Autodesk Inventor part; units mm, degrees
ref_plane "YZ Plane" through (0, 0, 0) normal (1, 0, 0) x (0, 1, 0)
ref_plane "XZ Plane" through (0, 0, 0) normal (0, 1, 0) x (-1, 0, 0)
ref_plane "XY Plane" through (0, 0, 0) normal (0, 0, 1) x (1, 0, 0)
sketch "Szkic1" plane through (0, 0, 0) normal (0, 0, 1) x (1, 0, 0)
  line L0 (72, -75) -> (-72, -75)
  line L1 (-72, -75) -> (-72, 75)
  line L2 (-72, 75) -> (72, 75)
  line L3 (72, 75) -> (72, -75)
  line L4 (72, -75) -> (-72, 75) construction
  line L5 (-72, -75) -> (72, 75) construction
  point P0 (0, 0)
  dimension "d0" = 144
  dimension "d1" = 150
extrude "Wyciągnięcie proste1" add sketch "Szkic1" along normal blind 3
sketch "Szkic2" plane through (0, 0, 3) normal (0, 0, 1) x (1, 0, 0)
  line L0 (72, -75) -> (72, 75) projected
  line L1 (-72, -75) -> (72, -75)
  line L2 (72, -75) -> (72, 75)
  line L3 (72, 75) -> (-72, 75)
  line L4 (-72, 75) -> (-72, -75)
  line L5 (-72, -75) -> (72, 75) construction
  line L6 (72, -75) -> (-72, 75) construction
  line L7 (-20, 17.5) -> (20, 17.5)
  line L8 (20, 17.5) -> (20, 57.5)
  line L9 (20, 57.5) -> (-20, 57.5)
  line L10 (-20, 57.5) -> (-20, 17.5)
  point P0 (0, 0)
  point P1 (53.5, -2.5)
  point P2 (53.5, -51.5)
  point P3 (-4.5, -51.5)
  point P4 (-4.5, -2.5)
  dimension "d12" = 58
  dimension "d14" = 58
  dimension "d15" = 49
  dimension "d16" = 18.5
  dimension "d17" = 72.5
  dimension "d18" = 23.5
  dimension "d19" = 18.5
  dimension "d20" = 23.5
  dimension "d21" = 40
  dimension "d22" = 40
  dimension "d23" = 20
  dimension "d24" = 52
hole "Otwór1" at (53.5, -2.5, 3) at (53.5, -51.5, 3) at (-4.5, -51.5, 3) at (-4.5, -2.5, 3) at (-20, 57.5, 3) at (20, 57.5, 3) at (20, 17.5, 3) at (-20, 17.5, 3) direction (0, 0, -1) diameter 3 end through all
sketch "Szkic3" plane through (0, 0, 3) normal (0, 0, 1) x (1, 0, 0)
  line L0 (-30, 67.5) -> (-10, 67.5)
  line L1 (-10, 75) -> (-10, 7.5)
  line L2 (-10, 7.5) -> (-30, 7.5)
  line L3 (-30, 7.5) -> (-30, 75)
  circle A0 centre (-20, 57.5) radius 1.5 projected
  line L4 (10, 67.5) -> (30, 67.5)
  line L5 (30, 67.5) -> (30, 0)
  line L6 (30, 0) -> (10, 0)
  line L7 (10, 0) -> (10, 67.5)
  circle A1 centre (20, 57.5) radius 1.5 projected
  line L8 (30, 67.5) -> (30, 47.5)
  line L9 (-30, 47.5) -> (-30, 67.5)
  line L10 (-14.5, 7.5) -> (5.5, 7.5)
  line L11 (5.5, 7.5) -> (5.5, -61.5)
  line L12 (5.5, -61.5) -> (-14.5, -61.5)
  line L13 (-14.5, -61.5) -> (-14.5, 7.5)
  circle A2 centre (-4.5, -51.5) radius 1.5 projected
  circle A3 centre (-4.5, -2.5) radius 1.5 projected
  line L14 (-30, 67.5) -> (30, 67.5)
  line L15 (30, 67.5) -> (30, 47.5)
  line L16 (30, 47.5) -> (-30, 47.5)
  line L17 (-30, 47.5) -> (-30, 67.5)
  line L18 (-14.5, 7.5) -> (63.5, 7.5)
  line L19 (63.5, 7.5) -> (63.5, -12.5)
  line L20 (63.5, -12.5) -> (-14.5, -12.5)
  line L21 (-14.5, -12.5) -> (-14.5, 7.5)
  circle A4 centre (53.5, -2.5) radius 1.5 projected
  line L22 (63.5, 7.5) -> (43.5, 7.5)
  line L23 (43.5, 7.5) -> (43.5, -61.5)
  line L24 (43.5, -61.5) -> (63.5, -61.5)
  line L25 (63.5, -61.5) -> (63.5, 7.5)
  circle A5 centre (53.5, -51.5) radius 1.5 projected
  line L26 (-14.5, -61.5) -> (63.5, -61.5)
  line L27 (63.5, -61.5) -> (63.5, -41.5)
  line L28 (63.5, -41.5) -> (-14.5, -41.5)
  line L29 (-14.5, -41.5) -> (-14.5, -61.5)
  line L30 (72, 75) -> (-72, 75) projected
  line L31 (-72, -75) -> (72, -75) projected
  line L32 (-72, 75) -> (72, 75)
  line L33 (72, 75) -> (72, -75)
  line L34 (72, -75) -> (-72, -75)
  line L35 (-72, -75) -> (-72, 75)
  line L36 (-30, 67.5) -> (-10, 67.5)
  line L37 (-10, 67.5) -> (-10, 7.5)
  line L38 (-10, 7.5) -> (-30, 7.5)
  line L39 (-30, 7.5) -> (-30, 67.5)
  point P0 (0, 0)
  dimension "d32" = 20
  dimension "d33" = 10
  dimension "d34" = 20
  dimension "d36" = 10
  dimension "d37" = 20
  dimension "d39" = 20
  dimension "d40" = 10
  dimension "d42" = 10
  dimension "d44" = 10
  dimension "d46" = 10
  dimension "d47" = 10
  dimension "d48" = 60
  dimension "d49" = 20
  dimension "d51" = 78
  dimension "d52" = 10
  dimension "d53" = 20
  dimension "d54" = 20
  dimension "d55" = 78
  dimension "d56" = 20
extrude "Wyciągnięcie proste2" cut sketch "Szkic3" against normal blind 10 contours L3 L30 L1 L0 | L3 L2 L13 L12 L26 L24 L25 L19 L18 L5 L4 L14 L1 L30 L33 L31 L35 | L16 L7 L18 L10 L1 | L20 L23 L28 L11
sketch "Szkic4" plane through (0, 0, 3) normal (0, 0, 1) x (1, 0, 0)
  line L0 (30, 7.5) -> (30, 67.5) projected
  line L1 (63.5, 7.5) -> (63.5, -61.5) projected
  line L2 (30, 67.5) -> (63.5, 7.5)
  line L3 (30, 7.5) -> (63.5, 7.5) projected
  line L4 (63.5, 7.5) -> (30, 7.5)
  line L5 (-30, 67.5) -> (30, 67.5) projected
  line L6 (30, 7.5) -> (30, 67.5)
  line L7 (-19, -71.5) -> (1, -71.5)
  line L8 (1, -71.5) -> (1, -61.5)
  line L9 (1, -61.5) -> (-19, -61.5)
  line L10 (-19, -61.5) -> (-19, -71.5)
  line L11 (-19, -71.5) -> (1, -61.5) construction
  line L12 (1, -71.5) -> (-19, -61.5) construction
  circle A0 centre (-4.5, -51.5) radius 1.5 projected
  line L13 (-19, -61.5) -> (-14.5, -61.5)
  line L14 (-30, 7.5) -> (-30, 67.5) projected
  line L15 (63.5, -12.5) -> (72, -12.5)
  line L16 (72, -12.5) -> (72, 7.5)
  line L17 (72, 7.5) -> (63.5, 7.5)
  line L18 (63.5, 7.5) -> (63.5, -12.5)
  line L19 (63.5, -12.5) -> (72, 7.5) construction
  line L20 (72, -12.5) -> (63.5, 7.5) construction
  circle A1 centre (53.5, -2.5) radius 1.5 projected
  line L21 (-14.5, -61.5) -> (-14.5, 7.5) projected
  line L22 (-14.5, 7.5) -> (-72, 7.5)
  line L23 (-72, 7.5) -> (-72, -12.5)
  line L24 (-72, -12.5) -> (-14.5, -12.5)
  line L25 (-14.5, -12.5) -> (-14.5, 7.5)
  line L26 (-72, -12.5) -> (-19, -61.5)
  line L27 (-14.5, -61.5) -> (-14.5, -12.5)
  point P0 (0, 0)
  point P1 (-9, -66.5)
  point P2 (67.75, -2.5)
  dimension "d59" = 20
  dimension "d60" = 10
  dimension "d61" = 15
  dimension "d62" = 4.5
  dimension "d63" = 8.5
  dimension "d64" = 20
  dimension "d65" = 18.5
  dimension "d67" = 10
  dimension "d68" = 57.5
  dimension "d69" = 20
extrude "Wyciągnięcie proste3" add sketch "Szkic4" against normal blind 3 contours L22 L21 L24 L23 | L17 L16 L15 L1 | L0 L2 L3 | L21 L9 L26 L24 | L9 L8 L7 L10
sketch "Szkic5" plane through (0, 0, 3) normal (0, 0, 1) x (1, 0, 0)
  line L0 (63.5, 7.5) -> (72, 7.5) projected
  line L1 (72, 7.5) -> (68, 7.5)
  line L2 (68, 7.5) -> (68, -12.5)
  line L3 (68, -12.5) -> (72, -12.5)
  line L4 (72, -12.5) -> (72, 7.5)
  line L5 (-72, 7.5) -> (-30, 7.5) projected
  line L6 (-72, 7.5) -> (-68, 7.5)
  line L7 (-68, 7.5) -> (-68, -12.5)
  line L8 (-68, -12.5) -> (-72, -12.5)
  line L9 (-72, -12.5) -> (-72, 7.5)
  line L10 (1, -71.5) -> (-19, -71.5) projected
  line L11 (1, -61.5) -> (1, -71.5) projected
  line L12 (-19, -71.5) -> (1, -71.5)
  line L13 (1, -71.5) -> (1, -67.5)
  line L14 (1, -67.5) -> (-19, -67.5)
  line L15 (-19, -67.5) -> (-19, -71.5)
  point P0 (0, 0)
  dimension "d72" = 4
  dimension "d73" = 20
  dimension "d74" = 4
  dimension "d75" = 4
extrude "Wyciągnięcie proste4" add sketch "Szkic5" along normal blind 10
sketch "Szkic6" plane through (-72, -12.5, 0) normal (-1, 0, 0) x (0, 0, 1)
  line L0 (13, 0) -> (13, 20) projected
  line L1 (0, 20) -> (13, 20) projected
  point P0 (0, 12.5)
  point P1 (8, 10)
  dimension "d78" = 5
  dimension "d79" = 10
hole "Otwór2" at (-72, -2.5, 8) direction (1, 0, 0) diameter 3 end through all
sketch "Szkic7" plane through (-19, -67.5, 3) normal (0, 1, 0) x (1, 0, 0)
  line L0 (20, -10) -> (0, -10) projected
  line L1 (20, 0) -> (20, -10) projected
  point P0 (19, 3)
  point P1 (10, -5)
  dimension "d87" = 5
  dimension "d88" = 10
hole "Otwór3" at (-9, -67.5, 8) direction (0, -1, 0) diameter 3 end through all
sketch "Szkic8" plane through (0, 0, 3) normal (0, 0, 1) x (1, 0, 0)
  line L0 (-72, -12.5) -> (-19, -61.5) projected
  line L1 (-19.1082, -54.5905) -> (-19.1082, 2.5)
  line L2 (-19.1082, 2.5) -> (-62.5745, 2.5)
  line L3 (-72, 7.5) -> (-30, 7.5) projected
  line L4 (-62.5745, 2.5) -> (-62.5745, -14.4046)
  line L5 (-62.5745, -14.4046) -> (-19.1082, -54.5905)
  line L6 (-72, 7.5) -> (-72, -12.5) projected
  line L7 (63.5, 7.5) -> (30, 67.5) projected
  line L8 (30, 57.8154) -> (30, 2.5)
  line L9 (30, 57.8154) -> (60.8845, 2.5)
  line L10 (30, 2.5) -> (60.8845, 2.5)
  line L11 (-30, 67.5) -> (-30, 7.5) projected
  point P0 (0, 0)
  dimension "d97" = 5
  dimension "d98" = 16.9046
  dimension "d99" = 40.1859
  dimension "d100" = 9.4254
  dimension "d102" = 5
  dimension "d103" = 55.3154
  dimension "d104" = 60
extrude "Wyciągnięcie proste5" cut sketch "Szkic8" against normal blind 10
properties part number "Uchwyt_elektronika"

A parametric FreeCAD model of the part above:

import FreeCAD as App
import Part
import Sketcher
Q = App.Units.Quantity

doc = App.newDocument("Part")
body = doc.addObject("PartDesign::Body", "Body")

# Sketch on XY plane
sketch1 = body.newObject("Sketcher::SketchObject", "Sketch")
sketch1.AttachmentSupport = (doc.getObject("XY_Plane"), [""])
sketch1.MapMode = "FlatFace"
sketch1.addGeometry([
    Part.LineSegment(App.Vector(-72, -75, 0), App.Vector(72, -75, 0)),
    Part.LineSegment(App.Vector(72, -75, 0), App.Vector(72, 75, 0)),
    Part.LineSegment(App.Vector(72, 75, 0), App.Vector(-72, 75, 0)),
    Part.LineSegment(App.Vector(-72, 75, 0), App.Vector(-72, -75, 0)),
], False)
sketch1.addConstraint([
    Sketcher.Constraint("Coincident", 0, 2, 1, 1),
    Sketcher.Constraint("Coincident", 1, 2, 2, 1),
    Sketcher.Constraint("Coincident", 2, 2, 3, 1),
    Sketcher.Constraint("Coincident", 3, 2, 0, 1),
    Sketcher.Constraint("Horizontal", 0),
    Sketcher.Constraint("Vertical", 1),
    Sketcher.Constraint("Horizontal", 2),
    Sketcher.Constraint("Vertical", 3),
    Sketcher.Constraint("Symmetric", 0, 2, 2, 2, -1, 1),
    Sketcher.Constraint("DistanceX", 0, 1, 0, 2, Q("144 mm")),
    Sketcher.Constraint("DistanceY", 1, 1, 1, 2, Q("150 mm")),
])
pad1 = body.newObject("PartDesign::Pad", "Pad")
pad1.Profile = sketch1
pad1.Length = 3

# Sketch on XY plane
sketch2 = body.newObject("Sketcher::SketchObject", "Sketch001")
sketch2.AttachmentSupport = (doc.getObject("XY_Plane"), [""])
sketch2.MapMode = "FlatFace"
sketch2.AttachmentOffset = App.Placement(App.Vector(0, 0, 3), App.Rotation())
sketch2.addGeometry([
    Part.Circle(App.Vector(53.5, -2.5, 0), App.Vector(0, 0, 1), 1.5),  # 0
    Part.Circle(App.Vector(53.5, -51.5, 0), App.Vector(0, 0, 1), 1.5),  # 1
    Part.Circle(App.Vector(-4.5, -51.5, 0), App.Vector(0, 0, 1), 1.5),  # 2
    Part.Circle(App.Vector(-4.5, -2.5, 0), App.Vector(0, 0, 1), 1.5),  # 3
    Part.Circle(App.Vector(-20, 57.5, 0), App.Vector(0, 0, 1), 1.5),  # 4
    Part.Circle(App.Vector(20, 57.5, 0), App.Vector(0, 0, 1), 1.5),  # 5
    Part.Circle(App.Vector(20, 17.5, 0), App.Vector(0, 0, 1), 1.5),  # 6
    Part.Circle(App.Vector(-20, 17.5, 0), App.Vector(0, 0, 1), 1.5),  # 7
], False)
sketch2.addConstraint([
    Sketcher.Constraint("Equal", 0, 1),
    Sketcher.Constraint("Equal", 1, 2),
    Sketcher.Constraint("Equal", 2, 3),
    Sketcher.Constraint("Equal", 3, 4),
    Sketcher.Constraint("Equal", 4, 5),
    Sketcher.Constraint("Equal", 5, 6),
    Sketcher.Constraint("Equal", 6, 7),
    Sketcher.Constraint("Symmetric", 4, 3, 5, 3, -2),
    Sketcher.Constraint("Symmetric", 6, 3, 7, 3, -2),
    Sketcher.Constraint("Horizontal", 1, 3, 2, 3),
    Sketcher.Constraint("Horizontal", 0, 3, 3, 3),
    Sketcher.Constraint("Vertical", 0, 3, 1, 3),
    Sketcher.Constraint("Vertical", 2, 3, 3, 3),
    Sketcher.Constraint("Vertical", 5, 3, 6, 3),
    Sketcher.Constraint("Diameter", 0, Q("3 mm")),
    Sketcher.Constraint("DistanceX", 4, 3, -1, 1, Q("20 mm")),
    Sketcher.Constraint("DistanceY", 1, 3, 0, 3, Q("49 mm")),
    Sketcher.Constraint("DistanceX", 2, 3, 1, 3, Q("58 mm")),
    Sketcher.Constraint("DistanceY", 3, 3, 4, 3, Q("60 mm")),
    Sketcher.Constraint("DistanceY", 3, 3, 6, 3, Q("20 mm")),
    Sketcher.Constraint("DistanceX", -1, 1, 0, 3, Q("53.5 mm")),
    Sketcher.Constraint("DistanceY", 0, 3, -1, 1, Q("2.5 mm")),
])
doc.recompute()
hole = body.newObject("PartDesign::Hole", "Hole")
hole.Profile = sketch2
hole.ThreadType = "None"
hole.Diameter = 3
hole.DepthType = "ThroughAll"

# Sketch on XY plane
sketch3 = body.newObject("Sketcher::SketchObject", "Sketch002")
sketch3.AttachmentSupport = (doc.getObject("XY_Plane"), [""])
sketch3.MapMode = "FlatFace"
sketch3.AttachmentOffset = App.Placement(App.Vector(0, 0, 3), App.Rotation())
sketch3.addGeometry([
    Part.LineSegment(App.Vector(-72, 75, 0), App.Vector(-72, -75, 0)),  # 0
    Part.LineSegment(App.Vector(-72, -75, 0), App.Vector(72, -75, 0)),  # 1
    Part.LineSegment(App.Vector(72, -75, 0), App.Vector(72, 75, 0)),  # 2
    Part.LineSegment(App.Vector(72, 75, 0), App.Vector(-72, 75, 0)),  # 3
    Part.LineSegment(App.Vector(-30, 68, 0), App.Vector(30, 68, 0)),  # 4
    Part.LineSegment(App.Vector(30, 68, 0), App.Vector(30, 8, 0)),  # 5
    Part.LineSegment(App.Vector(30, 8, 0), App.Vector(64, 8, 0)),  # 6
    Part.LineSegment(App.Vector(64, 8, 0), App.Vector(64, -62, 0)),  # 7
    Part.LineSegment(App.Vector(64, -62, 0), App.Vector(-14, -62, 0)),  # 8
    Part.LineSegment(App.Vector(-14, -62, 0), App.Vector(-14, 8, 0)),  # 9
    Part.LineSegment(App.Vector(-14, 8, 0), App.Vector(-30, 8, 0)),  # 10
    Part.LineSegment(App.Vector(-30, 8, 0), App.Vector(-30, 68, 0)),  # 11
    Part.LineSegment(App.Vector(10, 48, 0), App.Vector(-10, 48, 0)),  # 12
    Part.LineSegment(App.Vector(-10, 48, 0), App.Vector(-10, 8, 0)),  # 13
    Part.LineSegment(App.Vector(-10, 8, 0), App.Vector(10, 8, 0)),  # 14
    Part.LineSegment(App.Vector(10, 8, 0), App.Vector(10, 48, 0)),  # 15
    Part.LineSegment(App.Vector(44, -12, 0), App.Vector(6, -12, 0)),  # 16
    Part.LineSegment(App.Vector(6, -12, 0), App.Vector(6, -42, 0)),  # 17
    Part.LineSegment(App.Vector(6, -42, 0), App.Vector(44, -42, 0)),  # 18
    Part.LineSegment(App.Vector(44, -42, 0), App.Vector(44, -12, 0)),  # 19
], False)
sketch3.addConstraint([
    Sketcher.Constraint("Coincident", 0, 2, 1, 1),
    Sketcher.Constraint("Coincident", 1, 2, 2, 1),
    Sketcher.Constraint("Coincident", 2, 2, 3, 1),
    Sketcher.Constraint("Coincident", 3, 2, 0, 1),
    Sketcher.Constraint("Coincident", 4, 2, 5, 1),
    Sketcher.Constraint("Coincident", 5, 2, 6, 1),
    Sketcher.Constraint("Coincident", 6, 2, 7, 1),
    Sketcher.Constraint("Coincident", 7, 2, 8, 1),
    Sketcher.Constraint("Coincident", 8, 2, 9, 1),
    Sketcher.Constraint("Coincident", 9, 2, 10, 1),
    Sketcher.Constraint("Coincident", 10, 2, 11, 1),
    Sketcher.Constraint("Coincident", 11, 2, 4, 1),
    Sketcher.Constraint("Coincident", 12, 2, 13, 1),
    Sketcher.Constraint("Coincident", 13, 2, 14, 1),
    Sketcher.Constraint("Coincident", 14, 2, 15, 1),
    Sketcher.Constraint("Coincident", 15, 2, 12, 1),
    Sketcher.Constraint("Coincident", 16, 2, 17, 1),
    Sketcher.Constraint("Coincident", 17, 2, 18, 1),
    Sketcher.Constraint("Coincident", 18, 2, 19, 1),
    Sketcher.Constraint("Coincident", 19, 2, 16, 1),
    Sketcher.Constraint("Vertical", 0),
    Sketcher.Constraint("Horizontal", 1),
    Sketcher.Constraint("Vertical", 2),
    Sketcher.Constraint("Horizontal", 3),
    Sketcher.Constraint("Horizontal", 4),
    Sketcher.Constraint("Vertical", 5),
    Sketcher.Constraint("Horizontal", 6),
    Sketcher.Constraint("Vertical", 7),
    Sketcher.Constraint("Horizontal", 8),
    Sketcher.Constraint("Vertical", 9),
    Sketcher.Constraint("Horizontal", 10),
    Sketcher.Constraint("Vertical", 11),
    Sketcher.Constraint("Horizontal", 12),
    Sketcher.Constraint("Vertical", 13),
    Sketcher.Constraint("Horizontal", 14),
    Sketcher.Constraint("Vertical", 15),
    Sketcher.Constraint("Horizontal", 16),
    Sketcher.Constraint("Vertical", 17),
    Sketcher.Constraint("Horizontal", 18),
    Sketcher.Constraint("Vertical", 19),
    Sketcher.Constraint("Symmetric", 0, 2, 2, 2, -1, 1),
    Sketcher.Constraint("Symmetric", 5, 2, 10, 2, -2),
    Sketcher.Constraint("Horizontal", 10, 2, 13, 2),
    Sketcher.Constraint("Equal", 4, 5),
    Sketcher.Constraint("DistanceX", 4, 1, 4, 2, Q("60 mm")),
    Sketcher.Constraint("DistanceX", 8, 2, 8, 1, Q("78 mm")),
    Sketcher.Constraint("DistanceX", 12, 2, 12, 1, Q("20 mm")),
    Sketcher.Constraint("DistanceX", 12, 2, -1, 1, Q("10 mm")),
    Sketcher.Constraint("DistanceY", 12, 2, 11, 2, Q("20 mm")),
    Sketcher.Constraint("DistanceY", 16, 2, 14, 2, Q("20 mm")),
    Sketcher.Constraint("DistanceX", 9, 2, 16, 2, Q("20 mm")),
    Sketcher.Constraint("DistanceY", 8, 2, 17, 2, Q("20 mm")),
    Sketcher.Constraint("DistanceX", 18, 2, 7, 2, Q("20 mm")),
    Sketcher.Constraint("DistanceX", 1, 1, 1, 2, Q("144 mm")),
    Sketcher.Constraint("DistanceY", 0, 2, 0, 1, Q("150 mm")),
    Sketcher.Constraint("DistanceY", 7, 2, 7, 1, Q("69 mm")),
    Sketcher.Constraint("DistanceX", 6, 1, 6, 2, Q("33.5 mm")),
    Sketcher.Constraint("DistanceY", -1, 1, 4, 2, Q("67.5 mm")),
])
pocket1 = body.newObject("PartDesign::Pocket", "Pocket")
pocket1.Profile = sketch3
pocket1.Length = 10

# Sketch on XY plane
sketch4 = body.newObject("Sketcher::SketchObject", "Sketch003")
sketch4.AttachmentSupport = (doc.getObject("XY_Plane"), [""])
sketch4.MapMode = "FlatFace"
sketch4.AttachmentOffset = App.Placement(App.Vector(0, 0, 3), App.Rotation())
sketch4.addGeometry([
    Part.LineSegment(App.Vector(-14, 8, 0), App.Vector(-72, 8, 0)),  # 0
    Part.LineSegment(App.Vector(-72, 8, 0), App.Vector(-72, -12, 0)),  # 1
    Part.LineSegment(App.Vector(-72, -12, 0), App.Vector(-19, -62, 0)),  # 2
    Part.LineSegment(App.Vector(-19, -62, 0), App.Vector(-19, -72, 0)),  # 3
    Part.LineSegment(App.Vector(-19, -72, 0), App.Vector(1, -72, 0)),  # 4
    Part.LineSegment(App.Vector(1, -72, 0), App.Vector(1, -62, 0)),  # 5
    Part.LineSegment(App.Vector(1, -62, 0), App.Vector(-14, -62, 0)),  # 6
    Part.LineSegment(App.Vector(-14, -62, 0), App.Vector(-14, 8, 0)),  # 7
    Part.LineSegment(App.Vector(72, 8, 0), App.Vector(64, 8, 0)),  # 8
    Part.LineSegment(App.Vector(64, 8, 0), App.Vector(64, -12, 0)),  # 9
    Part.LineSegment(App.Vector(64, -12, 0), App.Vector(72, -12, 0)),  # 10
    Part.LineSegment(App.Vector(72, -12, 0), App.Vector(72, 8, 0)),  # 11
    Part.LineSegment(App.Vector(30, 68, 0), App.Vector(30, 8, 0)),  # 12
    Part.LineSegment(App.Vector(30, 8, 0), App.Vector(64, 8, 0)),  # 13
    Part.LineSegment(App.Vector(64, 8, 0), App.Vector(30, 68, 0)),  # 14
], False)
sketch4.addConstraint([
    Sketcher.Constraint("Coincident", 0, 2, 1, 1),
    Sketcher.Constraint("Coincident", 1, 2, 2, 1),
    Sketcher.Constraint("Coincident", 2, 2, 3, 1),
    Sketcher.Constraint("Coincident", 3, 2, 4, 1),
    Sketcher.Constraint("Coincident", 4, 2, 5, 1),
    Sketcher.Constraint("Coincident", 5, 2, 6, 1),
    Sketcher.Constraint("Coincident", 6, 2, 7, 1),
    Sketcher.Constraint("Coincident", 7, 2, 0, 1),
    Sketcher.Constraint("Coincident", 8, 2, 9, 1),
    Sketcher.Constraint("Coincident", 9, 2, 10, 1),
    Sketcher.Constraint("Coincident", 10, 2, 11, 1),
    Sketcher.Constraint("Coincident", 11, 2, 8, 1),
    Sketcher.Constraint("Coincident", 12, 2, 13, 1),
    Sketcher.Constraint("Coincident", 13, 2, 14, 1),
    Sketcher.Constraint("Coincident", 14, 2, 12, 1),
    Sketcher.Constraint("Horizontal", 0),
    Sketcher.Constraint("Vertical", 1),
    Sketcher.Constraint("Vertical", 3),
    Sketcher.Constraint("Horizontal", 4),
    Sketcher.Constraint("Vertical", 5),
    Sketcher.Constraint("Horizontal", 6),
    Sketcher.Constraint("Vertical", 7),
    Sketcher.Constraint("Horizontal", 8),
    Sketcher.Constraint("Vertical", 9),
    Sketcher.Constraint("Horizontal", 10),
    Sketcher.Constraint("Vertical", 11),
    Sketcher.Constraint("Vertical", 12),
    Sketcher.Constraint("Horizontal", 13),
    Sketcher.Constraint("Coincident", 13, 2, 8, 2),
    Sketcher.Constraint("Symmetric", 1, 2, 10, 2, -2),
    Sketcher.Constraint("Horizontal", 2, 2, 5, 2),
    Sketcher.Constraint("Horizontal", 7, 2, 8, 2),
    Sketcher.Constraint("Equal", 4, 1),
    Sketcher.Constraint("DistanceX", 4, 1, 4, 2, Q("20 mm")),
    Sketcher.Constraint("DistanceY", 3, 2, 3, 1, Q("10 mm")),
    Sketcher.Constraint("DistanceX", 0, 2, 0, 1, Q("57.5 mm")),
    Sketcher.Constraint("DistanceX", 8, 2, 8, 1, Q("8.5 mm")),
    Sketcher.Constraint("DistanceX", 2, 2, 6, 2, Q("4.5 mm")),
    Sketcher.Constraint("DistanceY", 7, 1, 7, 2, Q("69 mm")),
    Sketcher.Constraint("DistanceY", 12, 2, 12, 1, Q("60 mm")),
    Sketcher.Constraint("DistanceX", 13, 1, 13, 2, Q("33.5 mm")),
    Sketcher.Constraint("DistanceX", 0, 2, -1, 1, Q("72 mm")),
    Sketcher.Constraint("DistanceY", -1, 1, 0, 2, Q("7.5 mm")),
])
pad2 = body.newObject("PartDesign::Pad", "Pad001")
pad2.Profile = sketch4
pad2.Length = 3
pad2.Reversed = True

# Sketch on XY plane
sketch5 = body.newObject("Sketcher::SketchObject", "Sketch004")
sketch5.AttachmentSupport = (doc.getObject("XY_Plane"), [""])
sketch5.MapMode = "FlatFace"
sketch5.AttachmentOffset = App.Placement(App.Vector(0, 0, 3), App.Rotation())
sketch5.addGeometry([
    Part.LineSegment(App.Vector(72, 7.5, 0), App.Vector(68, 7.5, 0)),  # 0
    Part.LineSegment(App.Vector(68, 7.5, 0), App.Vector(68, -12.5, 0)),  # 1
    Part.LineSegment(App.Vector(68, -12.5, 0), App.Vector(72, -12.5, 0)),  # 2
    Part.LineSegment(App.Vector(72, -12.5, 0), App.Vector(72, 7.5, 0)),  # 3
    Part.LineSegment(App.Vector(-68, 7.5, 0), App.Vector(-72, 7.5, 0)),  # 4
    Part.LineSegment(App.Vector(-72, 7.5, 0), App.Vector(-72, -12.5, 0)),  # 5
    Part.LineSegment(App.Vector(-72, -12.5, 0), App.Vector(-68, -12.5, 0)),  # 6
    Part.LineSegment(App.Vector(-68, -12.5, 0), App.Vector(-68, 7.5, 0)),  # 7
    Part.LineSegment(App.Vector(-19, -71.5, 0), App.Vector(1, -71.5, 0)),  # 8
    Part.LineSegment(App.Vector(1, -71.5, 0), App.Vector(1, -67.5, 0)),  # 9
    Part.LineSegment(App.Vector(1, -67.5, 0), App.Vector(-19, -67.5, 0)),  # 10
    Part.LineSegment(App.Vector(-19, -67.5, 0), App.Vector(-19, -71.5, 0)),  # 11
], False)
sketch5.addConstraint([
    Sketcher.Constraint("Coincident", 0, 2, 1, 1),
    Sketcher.Constraint("Coincident", 1, 2, 2, 1),
    Sketcher.Constraint("Coincident", 2, 2, 3, 1),
    Sketcher.Constraint("Coincident", 3, 2, 0, 1),
    Sketcher.Constraint("Coincident", 4, 2, 5, 1),
    Sketcher.Constraint("Coincident", 5, 2, 6, 1),
    Sketcher.Constraint("Coincident", 6, 2, 7, 1),
    Sketcher.Constraint("Coincident", 7, 2, 4, 1),
    Sketcher.Constraint("Coincident", 8, 2, 9, 1),
    Sketcher.Constraint("Coincident", 9, 2, 10, 1),
    Sketcher.Constraint("Coincident", 10, 2, 11, 1),
    Sketcher.Constraint("Coincident", 11, 2, 8, 1),
    Sketcher.Constraint("Horizontal", 0),
    Sketcher.Constraint("Vertical", 1),
    Sketcher.Constraint("Horizontal", 2),
    Sketcher.Constraint("Vertical", 3),
    Sketcher.Constraint("Horizontal", 4),
    Sketcher.Constraint("Vertical", 5),
    Sketcher.Constraint("Horizontal", 6),
    Sketcher.Constraint("Vertical", 7),
    Sketcher.Constraint("Horizontal", 8),
    Sketcher.Constraint("Vertical", 9),
    Sketcher.Constraint("Horizontal", 10),
    Sketcher.Constraint("Vertical", 11),
    Sketcher.Constraint("Symmetric", 3, 2, 4, 2, -2),
    Sketcher.Constraint("Symmetric", 1, 2, 6, 2, -2),
    Sketcher.Constraint("Equal", 10, 1),
    Sketcher.Constraint("Equal", 6, 9),
    Sketcher.Constraint("DistanceX", 0, 2, 0, 1, Q("4 mm")),
    Sketcher.Constraint("DistanceX", 8, 1, 8, 2, Q("20 mm")),
    Sketcher.Constraint("DistanceX", -1, 1, 0, 2, Q("68 mm")),
    Sketcher.Constraint("DistanceX", -1, 1, 8, 2, Q("1 mm")),
    Sketcher.Constraint("DistanceY", 8, 2, 1, 2, Q("59 mm")),
    Sketcher.Constraint("DistanceY", -1, 1, 0, 2, Q("7.5 mm")),
])
pad3 = body.newObject("PartDesign::Pad", "Pad002")
pad3.Profile = sketch5
pad3.Length = 10

# Sketch on YZ plane
sketch6 = body.newObject("Sketcher::SketchObject", "Sketch005")
sketch6.AttachmentSupport = (doc.getObject("YZ_Plane"), [""])
sketch6.MapMode = "FlatFace"
sketch6.AttachmentOffset = App.Placement(App.Vector(0, 0, -72), App.Rotation())
sketch6.addGeometry(Part.Circle(App.Vector(-2.5, 8, 0), App.Vector(0, 0, 1), 1.5), False)
sketch6.addConstraint([
    Sketcher.Constraint("Diameter", 0, Q("3 mm")),
    Sketcher.Constraint("DistanceY", -1, 1, 0, 3, Q("8 mm")),
    Sketcher.Constraint("DistanceX", 0, 3, -1, 1, Q("2.5 mm")),
])
doc.recompute()
hole2 = body.newObject("PartDesign::Hole", "Hole001")
hole2.Profile = sketch6
hole2.ThreadType = "None"
hole2.Diameter = 3
hole2.DepthType = "ThroughAll"
hole2.Reversed = True

# Sketch on XZ plane
sketch7 = body.newObject("Sketcher::SketchObject", "Sketch006")
sketch7.AttachmentSupport = (doc.getObject("XZ_Plane"), [""])
sketch7.MapMode = "FlatFace"
sketch7.AttachmentOffset = App.Placement(App.Vector(0, 0, 67.5), App.Rotation())
sketch7.addGeometry(Part.Circle(App.Vector(-9, 8, 0), App.Vector(0, 0, 1), 1.5), False)
sketch7.addConstraint([
    Sketcher.Constraint("Diameter", 0, Q("3 mm")),
    Sketcher.Constraint("DistanceX", 0, 3, -1, 1, Q("9 mm")),
    Sketcher.Constraint("DistanceY", -1, 1, 0, 3, Q("8 mm")),
])
doc.recompute()
hole3 = body.newObject("PartDesign::Hole", "Hole002")
hole3.Profile = sketch7
hole3.ThreadType = "None"
hole3.Diameter = 3
hole3.DepthType = "ThroughAll"
hole3.Reversed = True

# Sketch on XY plane
sketch8 = body.newObject("Sketcher::SketchObject", "Sketch007")
sketch8.AttachmentSupport = (doc.getObject("XY_Plane"), [""])
sketch8.MapMode = "FlatFace"
sketch8.AttachmentOffset = App.Placement(App.Vector(0, 0, 3), App.Rotation())
sketch8.addGeometry([
    Part.LineSegment(App.Vector(-63, -14, 0), App.Vector(-19, -55, 0)),  # 0
    Part.LineSegment(App.Vector(-19, -55, 0), App.Vector(-19, 2, 0)),  # 1
    Part.LineSegment(App.Vector(-19, 2, 0), App.Vector(-63, 2, 0)),  # 2
    Part.LineSegment(App.Vector(-63, 2, 0), App.Vector(-63, -14, 0)),  # 3
    Part.LineSegment(App.Vector(61, 2, 0), App.Vector(30, 58, 0)),  # 4
    Part.LineSegment(App.Vector(30, 58, 0), App.Vector(30, 2, 0)),  # 5
    Part.LineSegment(App.Vector(30, 2, 0), App.Vector(61, 2, 0)),  # 6
], False)
sketch8.addConstraint([
    Sketcher.Constraint("Coincident", 0, 2, 1, 1),
    Sketcher.Constraint("Coincident", 1, 2, 2, 1),
    Sketcher.Constraint("Coincident", 2, 2, 3, 1),
    Sketcher.Constraint("Coincident", 3, 2, 0, 1),
    Sketcher.Constraint("Coincident", 4, 2, 5, 1),
    Sketcher.Constraint("Coincident", 5, 2, 6, 1),
    Sketcher.Constraint("Coincident", 6, 2, 4, 1),
    Sketcher.Constraint("Vertical", 1),
    Sketcher.Constraint("Horizontal", 2),
    Sketcher.Constraint("Vertical", 3),
    Sketcher.Constraint("Vertical", 5),
    Sketcher.Constraint("Horizontal", 6),
    Sketcher.Constraint("Horizontal", 2, 2, 5, 2),
    Sketcher.Constraint("DistanceY", 3, 2, 3, 1, Q("16.9046 mm")),
    Sketcher.Constraint("DistanceY", 5, 2, 5, 1, Q("55.3154 mm")),
    Sketcher.Constraint("DistanceX", -1, 1, 4, 2, Q("30 mm")),
    Sketcher.Constraint("DistanceY", 0, 2, 3, 2, Q("40.186 mm")),
    Sketcher.Constraint("DistanceY", -1, 1, 1, 2, Q("2.5 mm")),
    Sketcher.Constraint("DistanceX", 2, 2, 2, 1, Q("43.4663 mm")),
    Sketcher.Constraint("DistanceX", 6, 1, 6, 2, Q("30.8845 mm")),
    Sketcher.Constraint("DistanceX", 2, 2, 6, 2, Q("123.459 mm")),
])
pocket2 = body.newObject("PartDesign::Pocket", "Pocket001")
pocket2.Profile = sketch8
pocket2.Length = 10

doc.recompute()
